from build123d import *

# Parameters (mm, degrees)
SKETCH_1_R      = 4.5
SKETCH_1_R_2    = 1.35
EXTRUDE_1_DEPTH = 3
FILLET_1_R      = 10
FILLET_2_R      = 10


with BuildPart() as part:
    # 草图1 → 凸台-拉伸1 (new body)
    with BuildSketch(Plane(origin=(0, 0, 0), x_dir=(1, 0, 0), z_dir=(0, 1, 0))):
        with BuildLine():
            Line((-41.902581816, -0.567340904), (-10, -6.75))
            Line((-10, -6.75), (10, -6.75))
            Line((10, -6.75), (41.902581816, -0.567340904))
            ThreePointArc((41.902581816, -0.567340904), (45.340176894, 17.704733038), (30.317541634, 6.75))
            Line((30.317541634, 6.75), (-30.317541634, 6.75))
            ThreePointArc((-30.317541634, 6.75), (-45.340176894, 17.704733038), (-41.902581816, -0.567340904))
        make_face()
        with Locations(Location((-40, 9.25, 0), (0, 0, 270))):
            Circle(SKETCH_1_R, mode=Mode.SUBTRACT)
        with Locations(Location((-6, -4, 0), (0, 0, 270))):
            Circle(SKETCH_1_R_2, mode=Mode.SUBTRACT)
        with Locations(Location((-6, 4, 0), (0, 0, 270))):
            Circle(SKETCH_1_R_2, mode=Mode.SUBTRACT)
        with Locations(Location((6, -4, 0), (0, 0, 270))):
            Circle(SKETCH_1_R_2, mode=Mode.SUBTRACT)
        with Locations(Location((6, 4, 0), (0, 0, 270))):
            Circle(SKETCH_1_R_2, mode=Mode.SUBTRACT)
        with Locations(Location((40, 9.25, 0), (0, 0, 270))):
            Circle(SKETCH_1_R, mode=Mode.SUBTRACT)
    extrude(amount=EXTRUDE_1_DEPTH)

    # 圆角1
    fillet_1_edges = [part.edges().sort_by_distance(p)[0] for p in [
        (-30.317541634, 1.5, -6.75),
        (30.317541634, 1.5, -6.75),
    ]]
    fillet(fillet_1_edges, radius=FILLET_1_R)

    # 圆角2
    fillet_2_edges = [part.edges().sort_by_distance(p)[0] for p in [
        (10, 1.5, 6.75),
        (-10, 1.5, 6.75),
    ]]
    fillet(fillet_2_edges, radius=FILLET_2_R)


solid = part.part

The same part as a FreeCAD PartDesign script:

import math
import FreeCAD as App
import Part
import Sketcher
from FreeCAD import Vector


def edges_at(feature, points):
    """Names of the edges that pass closest to the given points."""
    edges = feature.Shape.Edges
    near = lambda p: min(range(len(edges)), key=lambda i: edges[i].distToShape(Part.Vertex(*p))[0])
    return sorted({f"Edge{near(p) + 1}" for p in points})

doc = App.newDocument("Part")
params = doc.addObject("Spreadsheet::Sheet", "Params")
for row, (alias, value) in enumerate([
    ("sketch1_diameter", "9 mm"),
    ("sketch1_radius", "10 mm"),
    ("sketch1_diameter2", "2.7 mm"),
    ("sketch1_width", "20 mm"),
    ("sketch1_height", "2.5 mm"),
    ("pad1_length", "3 mm"),
    ("fillet_radius", "10 mm"),
    ("fillet2_radius", "10 mm"),
], start=1):
    params.set(f"A{row}", alias)
    params.set(f"B{row}", "=" + value)
    params.setAlias(f"B{row}", alias)

body = doc.addObject("PartDesign::Body", "Body")

# Sketch on XZ plane
sketch1 = body.newObject("Sketcher::SketchObject", "Sketch")
sketch1.AttachmentSupport = (doc.getObject("XZ_Plane"), [""])
sketch1.MapMode = "FlatFace"
sketch1.addGeometry([
    Part.LineSegment(Vector(-41.9, 0.6, 0), Vector(-10, 6.8, 0)),  # 0
    Part.LineSegment(Vector(-10, 6.8, 0), Vector(10, 6.8, 0)),  # 1
    Part.LineSegment(Vector(10, 6.8, 0), Vector(41.9, 0.6, 0)),  # 2
    Part.ArcOfCircle(Part.Circle(Vector(40, -9.2, 0), Vector(0, 0, 1), 10), math.radians(166), math.radians(439)),  # 3
    Part.LineSegment(Vector(30.3, -6.8, 0), Vector(-30.3, -6.8, 0)),  # 4
    Part.ArcOfCircle(Part.Circle(Vector(-40, -9.2, 0), Vector(0, 0, 1), 10), math.radians(101), math.radians(374)),  # 5
    Part.Circle(Vector(-6, 4, 0), Vector(0, 0, 1), 1.4),  # 6
    Part.Circle(Vector(-6, -4, 0), Vector(0, 0, 1), 1.4),  # 7
    Part.Circle(Vector(6, 4, 0), Vector(0, 0, 1), 1.4),  # 8
    Part.Circle(Vector(6, -4, 0), Vector(0, 0, 1), 1.4),  # 9
    Part.Circle(Vector(-40, -9.2, 0), Vector(0, 0, 1), 4.5),  # 10
    Part.Circle(Vector(40, -9.2, 0), Vector(0, 0, 1), 4.5),  # 11
], False)
sketch1.addConstraint([
    Sketcher.Constraint("Coincident", 0, 2, 1, 1),
    Sketcher.Constraint("Coincident", 1, 2, 2, 1),
    Sketcher.Constraint("Tangent", 2, 2, 3, 2),
    Sketcher.Constraint("Coincident", 3, 1, 4, 1),
    Sketcher.Constraint("Coincident", 4, 2, 5, 2),
    Sketcher.Constraint("Tangent", 5, 1, 0, 1),
    Sketcher.Constraint("Horizontal", 1),
    Sketcher.Constraint("Horizontal", 4),
    Sketcher.Constraint("Coincident", 10, 3, 5, 3),
    Sketcher.Constraint("Coincident", 11, 3, 3, 3),
    Sketcher.Constraint("Equal", 3, 5),
    Sketcher.Constraint("Equal", 6, 7),
    Sketcher.Constraint("Equal", 7, 8),
    Sketcher.Constraint("Equal", 8, 9),
    Sketcher.Constraint("Equal", 10, 11),
    Sketcher.Constraint("Symmetric", 7, 3, 8, 3, -1, 1),
    Sketcher.Constraint("Symmetric", 6, 3, 9, 3, -1, 1),
    Sketcher.Constraint("Symmetric", 3, 3, 5, 3, -2),
    Sketcher.Constraint("Symmetric", 6, 3, 8, 3, -2),
    Sketcher.Constraint("Horizontal", 2, 2, 5, 1),
    Sketcher.Constraint("Diameter", 10, 9.0),
    Sketcher.Constraint("Radius", 3, 10.0),
    Sketcher.Constraint("Diameter", 6, 2.7),
    Sketcher.Constraint("DistanceX", 1, 1, 1, 2, 20.0),
    Sketcher.Constraint("DistanceX", -1, 1, 3, 3, 40.0),
    Sketcher.Constraint("DistanceX", 6, 3, -1, 1, 6.0),
    Sketcher.Constraint("DistanceY", -1, 1, 6, 3, 4.0),
    Sketcher.Constraint("DistanceY", 5, 3, 0, 2, 16.0),
    Sketcher.Constraint("DistanceY", 3, 3, 3, 1, 2.5),
    Sketcher.Constraint("DistanceY", 3, 3, -1, 1, 9.25),
])
sketch1.setExpression("Constraints[20]", "Params.sketch1_diameter")
sketch1.setExpression("Constraints[21]", "Params.sketch1_radius")
sketch1.setExpression("Constraints[22]", "Params.sketch1_diameter2")
sketch1.setExpression("Constraints[23]", "Params.sketch1_width")
sketch1.setExpression("Constraints[28]", "Params.sketch1_height")
pad1 = body.newObject("PartDesign::Pad", "Pad")
pad1.Profile = sketch1
pad1.setExpression("Length", "Params.pad1_length")
pad1.Reversed = True
doc.recompute()

fillet = body.newObject("PartDesign::Fillet", "Fillet")
fillet.Base = (pad1, edges_at(pad1, [(-30.318, 1.5, -6.75), (30.318, 1.5, -6.75)]))
fillet.setExpression("Radius", "Params.fillet_radius")
doc.recompute()

fillet2 = body.newObject("PartDesign::Fillet", "Fillet001")
fillet2.Base = (fillet, edges_at(fillet, [(10, 1.5, 6.75), (-10, 1.5, 6.75)]))
fillet2.setExpression("Radius", "Params.fillet2_radius")

doc.recompute()
